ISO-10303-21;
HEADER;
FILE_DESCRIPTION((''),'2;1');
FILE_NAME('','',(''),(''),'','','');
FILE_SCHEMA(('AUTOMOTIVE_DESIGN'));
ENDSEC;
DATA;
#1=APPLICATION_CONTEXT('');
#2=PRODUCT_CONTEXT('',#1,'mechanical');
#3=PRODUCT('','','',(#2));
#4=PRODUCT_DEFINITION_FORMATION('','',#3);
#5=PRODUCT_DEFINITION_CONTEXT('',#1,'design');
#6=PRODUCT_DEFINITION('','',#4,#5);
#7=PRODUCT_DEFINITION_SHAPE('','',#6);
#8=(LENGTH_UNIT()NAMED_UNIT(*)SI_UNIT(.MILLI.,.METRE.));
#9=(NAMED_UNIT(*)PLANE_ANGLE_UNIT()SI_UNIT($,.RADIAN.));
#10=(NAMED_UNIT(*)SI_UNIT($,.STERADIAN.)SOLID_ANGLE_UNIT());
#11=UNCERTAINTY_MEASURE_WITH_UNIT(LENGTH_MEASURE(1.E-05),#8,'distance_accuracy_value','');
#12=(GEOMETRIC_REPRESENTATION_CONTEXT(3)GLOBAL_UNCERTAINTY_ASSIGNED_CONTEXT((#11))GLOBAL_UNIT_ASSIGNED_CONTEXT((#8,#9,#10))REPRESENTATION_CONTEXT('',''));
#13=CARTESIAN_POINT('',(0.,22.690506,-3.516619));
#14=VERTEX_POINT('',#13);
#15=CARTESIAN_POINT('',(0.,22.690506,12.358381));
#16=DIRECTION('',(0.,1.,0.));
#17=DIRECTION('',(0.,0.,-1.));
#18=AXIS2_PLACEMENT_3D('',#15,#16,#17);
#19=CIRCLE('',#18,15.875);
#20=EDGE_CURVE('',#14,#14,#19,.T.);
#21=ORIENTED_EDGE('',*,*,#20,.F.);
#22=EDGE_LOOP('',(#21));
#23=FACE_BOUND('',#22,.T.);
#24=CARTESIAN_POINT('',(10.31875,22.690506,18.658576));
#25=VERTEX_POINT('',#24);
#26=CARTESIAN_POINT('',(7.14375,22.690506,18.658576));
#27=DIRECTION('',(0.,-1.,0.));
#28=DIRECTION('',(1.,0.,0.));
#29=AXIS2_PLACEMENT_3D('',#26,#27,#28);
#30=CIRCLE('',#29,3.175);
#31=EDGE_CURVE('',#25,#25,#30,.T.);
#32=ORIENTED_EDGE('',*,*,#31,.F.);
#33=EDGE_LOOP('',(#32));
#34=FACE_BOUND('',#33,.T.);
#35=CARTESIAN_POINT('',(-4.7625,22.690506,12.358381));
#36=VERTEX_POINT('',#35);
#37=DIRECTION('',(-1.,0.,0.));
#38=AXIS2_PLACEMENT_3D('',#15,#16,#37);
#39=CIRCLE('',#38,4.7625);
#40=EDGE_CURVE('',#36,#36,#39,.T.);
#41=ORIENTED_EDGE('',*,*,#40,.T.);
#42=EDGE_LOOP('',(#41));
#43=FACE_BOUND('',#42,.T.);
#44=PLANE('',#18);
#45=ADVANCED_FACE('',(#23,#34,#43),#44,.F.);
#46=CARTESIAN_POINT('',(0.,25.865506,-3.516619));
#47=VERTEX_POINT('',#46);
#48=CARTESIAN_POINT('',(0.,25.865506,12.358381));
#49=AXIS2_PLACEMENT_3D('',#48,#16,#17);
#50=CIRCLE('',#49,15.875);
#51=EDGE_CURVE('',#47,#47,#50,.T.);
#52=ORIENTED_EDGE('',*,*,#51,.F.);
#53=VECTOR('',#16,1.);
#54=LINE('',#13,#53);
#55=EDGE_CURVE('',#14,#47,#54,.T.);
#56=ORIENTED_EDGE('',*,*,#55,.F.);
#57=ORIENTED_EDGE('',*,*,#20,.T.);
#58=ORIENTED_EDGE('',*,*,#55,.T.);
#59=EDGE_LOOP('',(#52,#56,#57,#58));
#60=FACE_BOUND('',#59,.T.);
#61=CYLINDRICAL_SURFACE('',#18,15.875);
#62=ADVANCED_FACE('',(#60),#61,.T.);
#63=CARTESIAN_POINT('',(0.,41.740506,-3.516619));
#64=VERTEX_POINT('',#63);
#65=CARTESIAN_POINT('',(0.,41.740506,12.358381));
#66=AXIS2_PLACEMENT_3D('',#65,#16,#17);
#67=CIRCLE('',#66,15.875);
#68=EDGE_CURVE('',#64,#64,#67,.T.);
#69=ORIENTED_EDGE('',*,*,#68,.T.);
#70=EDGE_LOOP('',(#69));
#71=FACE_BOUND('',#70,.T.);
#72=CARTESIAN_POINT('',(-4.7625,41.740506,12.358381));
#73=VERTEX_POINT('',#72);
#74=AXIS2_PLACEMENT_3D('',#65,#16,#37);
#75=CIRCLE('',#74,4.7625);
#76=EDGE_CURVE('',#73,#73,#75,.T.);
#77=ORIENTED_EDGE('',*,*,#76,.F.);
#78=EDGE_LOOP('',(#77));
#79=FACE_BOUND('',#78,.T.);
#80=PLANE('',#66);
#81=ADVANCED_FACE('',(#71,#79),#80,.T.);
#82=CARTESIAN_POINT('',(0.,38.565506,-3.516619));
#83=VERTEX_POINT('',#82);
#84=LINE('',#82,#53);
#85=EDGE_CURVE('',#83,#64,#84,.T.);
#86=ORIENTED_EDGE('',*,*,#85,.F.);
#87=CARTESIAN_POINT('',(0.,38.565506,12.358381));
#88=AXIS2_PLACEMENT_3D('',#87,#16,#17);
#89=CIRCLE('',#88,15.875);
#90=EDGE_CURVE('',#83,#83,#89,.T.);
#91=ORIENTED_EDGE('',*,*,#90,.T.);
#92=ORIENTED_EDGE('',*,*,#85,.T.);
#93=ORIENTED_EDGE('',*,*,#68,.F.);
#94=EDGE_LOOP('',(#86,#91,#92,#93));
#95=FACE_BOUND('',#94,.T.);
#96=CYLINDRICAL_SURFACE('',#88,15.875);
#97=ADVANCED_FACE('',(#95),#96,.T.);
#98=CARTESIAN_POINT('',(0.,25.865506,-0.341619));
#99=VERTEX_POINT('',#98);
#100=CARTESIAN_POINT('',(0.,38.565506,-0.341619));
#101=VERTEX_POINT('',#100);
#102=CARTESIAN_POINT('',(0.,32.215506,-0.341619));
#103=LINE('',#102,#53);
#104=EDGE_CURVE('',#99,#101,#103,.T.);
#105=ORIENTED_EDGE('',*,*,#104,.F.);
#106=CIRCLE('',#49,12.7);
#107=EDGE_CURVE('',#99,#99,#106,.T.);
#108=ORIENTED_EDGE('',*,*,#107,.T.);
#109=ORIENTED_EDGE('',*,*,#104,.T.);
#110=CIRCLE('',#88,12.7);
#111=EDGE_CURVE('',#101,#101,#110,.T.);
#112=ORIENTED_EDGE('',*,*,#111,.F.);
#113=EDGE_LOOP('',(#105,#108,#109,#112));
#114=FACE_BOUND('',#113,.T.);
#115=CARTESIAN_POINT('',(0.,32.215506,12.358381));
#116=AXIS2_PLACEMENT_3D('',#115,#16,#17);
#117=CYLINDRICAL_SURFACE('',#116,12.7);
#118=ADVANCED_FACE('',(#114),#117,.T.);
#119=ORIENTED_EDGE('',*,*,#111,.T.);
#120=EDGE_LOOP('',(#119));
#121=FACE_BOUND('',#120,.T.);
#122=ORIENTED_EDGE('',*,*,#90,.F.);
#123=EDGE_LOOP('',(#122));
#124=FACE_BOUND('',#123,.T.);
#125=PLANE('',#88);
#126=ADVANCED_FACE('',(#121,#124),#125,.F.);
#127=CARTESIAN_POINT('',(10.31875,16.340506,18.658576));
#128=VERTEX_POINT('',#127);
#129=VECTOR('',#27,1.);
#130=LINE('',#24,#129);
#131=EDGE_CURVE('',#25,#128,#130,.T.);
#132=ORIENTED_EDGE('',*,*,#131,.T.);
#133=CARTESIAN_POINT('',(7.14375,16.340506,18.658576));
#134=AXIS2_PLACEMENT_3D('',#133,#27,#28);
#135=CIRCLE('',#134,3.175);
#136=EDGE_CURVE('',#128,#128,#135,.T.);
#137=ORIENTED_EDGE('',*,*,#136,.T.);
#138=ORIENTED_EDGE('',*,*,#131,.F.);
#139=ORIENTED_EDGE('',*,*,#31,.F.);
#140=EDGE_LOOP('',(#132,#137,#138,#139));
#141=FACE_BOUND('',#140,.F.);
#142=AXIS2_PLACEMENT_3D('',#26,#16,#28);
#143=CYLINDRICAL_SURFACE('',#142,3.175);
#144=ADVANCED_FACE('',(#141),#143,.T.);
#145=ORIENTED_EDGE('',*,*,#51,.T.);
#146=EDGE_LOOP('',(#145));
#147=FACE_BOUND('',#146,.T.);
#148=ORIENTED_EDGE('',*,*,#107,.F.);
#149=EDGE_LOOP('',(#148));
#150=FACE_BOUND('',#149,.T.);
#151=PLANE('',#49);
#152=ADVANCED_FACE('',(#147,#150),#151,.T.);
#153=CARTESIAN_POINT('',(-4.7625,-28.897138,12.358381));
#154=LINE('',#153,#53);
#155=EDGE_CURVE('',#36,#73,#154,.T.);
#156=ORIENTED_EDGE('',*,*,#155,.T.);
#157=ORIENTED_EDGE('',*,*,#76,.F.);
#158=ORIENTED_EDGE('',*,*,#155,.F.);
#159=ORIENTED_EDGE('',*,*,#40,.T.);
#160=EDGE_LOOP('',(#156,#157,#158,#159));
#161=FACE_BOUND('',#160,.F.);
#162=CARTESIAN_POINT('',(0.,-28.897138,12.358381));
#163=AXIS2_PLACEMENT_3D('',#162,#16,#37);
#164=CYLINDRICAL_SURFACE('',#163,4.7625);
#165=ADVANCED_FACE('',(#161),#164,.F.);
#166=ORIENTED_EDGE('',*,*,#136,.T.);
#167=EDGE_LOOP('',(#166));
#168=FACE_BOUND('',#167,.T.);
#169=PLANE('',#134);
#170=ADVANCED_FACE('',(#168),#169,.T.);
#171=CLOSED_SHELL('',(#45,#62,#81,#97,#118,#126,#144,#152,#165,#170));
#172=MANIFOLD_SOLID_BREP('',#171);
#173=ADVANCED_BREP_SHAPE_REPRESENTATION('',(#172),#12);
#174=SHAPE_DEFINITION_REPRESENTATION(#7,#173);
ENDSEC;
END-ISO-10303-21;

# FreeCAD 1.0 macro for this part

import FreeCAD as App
import Part
import Sketcher
from FreeCAD import Vector
Q = App.Units.Quantity


def add_polygon(sketch, points):
    """Adds a closed chain of lines whose ends are joined by coincident constraints."""
    first, n = sketch.GeometryCount, len(points)
    for a, b in zip(points, points[1:] + points[:1]):
        sketch.addGeometry(Part.LineSegment(App.Vector(*a, 0), App.Vector(*b, 0)), False)
    for i in range(n):
        sketch.addConstraint(Sketcher.Constraint("Coincident", first + i, 2, first + (i + 1) % n, 1))

doc = App.newDocument("Part")
body = doc.addObject("PartDesign::Body", "Body")

# Sketch on YZ plane
sketch1 = body.newObject("Sketcher::SketchObject", "Sketch")
sketch1.AttachmentSupport = (doc.getObject("YZ_Plane"), [""])
sketch1.MapMode = "FlatFace"
add_polygon(sketch1, [(25.9, -0.3), (38.6, -0.3), (38.6, -3.5), (41.7, -3.5), (41.7, 12.4), (22.7, 12.4), (22.7, -3.5), (25.9, -3.5)])  # lines 0-7
sketch1.addGeometry(Part.LineSegment(Vector(22.7, 12.4, 0), Vector(41.7, 12.4, 0)), True)  # axis
sketch1.addConstraint([
    Sketcher.Constraint("Horizontal", 0),
    Sketcher.Constraint("Vertical", 1),
    Sketcher.Constraint("Horizontal", 2),
    Sketcher.Constraint("Vertical", 3),
    Sketcher.Constraint("Horizontal", 4),
    Sketcher.Constraint("Vertical", 5),
    Sketcher.Constraint("Horizontal", 6),
    Sketcher.Constraint("Vertical", 7),
    Sketcher.Constraint("Horizontal", 8),
    Sketcher.Constraint("Coincident", 8, 1, 4, 2),
    Sketcher.Constraint("Horizontal", 2, 2, 5, 2),
    Sketcher.Constraint("Vertical", 2, 2, 8, 2),
    Sketcher.Constraint("Equal", 2, 6),
    Sketcher.Constraint("Equal", 6, 1),
    Sketcher.Constraint("DistanceX", 0, 1, 0, 2, Q("0.5 in")),
    Sketcher.Constraint("DistanceX", 4, 2, 4, 1, Q("0.75 in")),
    Sketcher.Constraint("DistanceY", 0, 2, 3, 2, Q("0.5 in")),
    Sketcher.Constraint("DistanceY", 0, 2, -1, 1, 0.341619),
    Sketcher.Constraint("DistanceX", -1, 1, 0, 2, 38.565506),
])
revolution = body.newObject("PartDesign::Revolution", "Revolution")
revolution.Profile = sketch1
revolution.ReferenceAxis = (sketch1, ["Axis0"])
revolution.Angle = 360

# Sketch on XZ plane
sketch2 = body.newObject("Sketcher::SketchObject", "Sketch001")
sketch2.AttachmentSupport = (doc.getObject("XZ_Plane"), [""])
sketch2.MapMode = "FlatFace"
sketch2.AttachmentOffset = App.Placement(Vector(0, 0, -22.690506), App.Rotation())
sketch2.addGeometry(Part.Circle(Vector(7.1, 18.7, 0), Vector(0, 0, 1), 3.2), False)
sketch2.addConstraint([
    Sketcher.Constraint("Diameter", 0, Q("0.25 in")),
    Sketcher.Constraint("DistanceX", -1, 1, 0, 3, Q("0.28125 in")),
    Sketcher.Constraint("DistanceY", -1, 1, 0, 3, 18.658576),
])
pad1 = body.newObject("PartDesign::Pad", "Pad")
pad1.Profile = sketch2
pad1.Length = Q("0.25 in")

# Sketch on XZ plane
sketch3 = body.newObject("Sketcher::SketchObject", "Sketch002")
sketch3.AttachmentSupport = (doc.getObject("XZ_Plane"), [""])
sketch3.MapMode = "FlatFace"
sketch3.AttachmentOffset = App.Placement(Vector(0, 0, -22.690506), App.Rotation())
sketch3.addGeometry(Part.Circle(Vector(0, 12.4, 0), Vector(0, 0, 1), 4.8), False)
sketch3.addConstraint([
    Sketcher.Constraint("PointOnObject", 0, 3, -2),
    Sketcher.Constraint("Diameter", 0, Q("0.375 in")),
    Sketcher.Constraint("DistanceY", -1, 1, 0, 3, 12.358381),
])
doc.recompute()
hole = body.newObject("PartDesign::Hole", "Hole")
hole.Profile = sketch3
hole.ThreadType = "None"
hole.Diameter = Q("0.375 in")
hole.DepthType = "ThroughAll"

doc.recompute()
